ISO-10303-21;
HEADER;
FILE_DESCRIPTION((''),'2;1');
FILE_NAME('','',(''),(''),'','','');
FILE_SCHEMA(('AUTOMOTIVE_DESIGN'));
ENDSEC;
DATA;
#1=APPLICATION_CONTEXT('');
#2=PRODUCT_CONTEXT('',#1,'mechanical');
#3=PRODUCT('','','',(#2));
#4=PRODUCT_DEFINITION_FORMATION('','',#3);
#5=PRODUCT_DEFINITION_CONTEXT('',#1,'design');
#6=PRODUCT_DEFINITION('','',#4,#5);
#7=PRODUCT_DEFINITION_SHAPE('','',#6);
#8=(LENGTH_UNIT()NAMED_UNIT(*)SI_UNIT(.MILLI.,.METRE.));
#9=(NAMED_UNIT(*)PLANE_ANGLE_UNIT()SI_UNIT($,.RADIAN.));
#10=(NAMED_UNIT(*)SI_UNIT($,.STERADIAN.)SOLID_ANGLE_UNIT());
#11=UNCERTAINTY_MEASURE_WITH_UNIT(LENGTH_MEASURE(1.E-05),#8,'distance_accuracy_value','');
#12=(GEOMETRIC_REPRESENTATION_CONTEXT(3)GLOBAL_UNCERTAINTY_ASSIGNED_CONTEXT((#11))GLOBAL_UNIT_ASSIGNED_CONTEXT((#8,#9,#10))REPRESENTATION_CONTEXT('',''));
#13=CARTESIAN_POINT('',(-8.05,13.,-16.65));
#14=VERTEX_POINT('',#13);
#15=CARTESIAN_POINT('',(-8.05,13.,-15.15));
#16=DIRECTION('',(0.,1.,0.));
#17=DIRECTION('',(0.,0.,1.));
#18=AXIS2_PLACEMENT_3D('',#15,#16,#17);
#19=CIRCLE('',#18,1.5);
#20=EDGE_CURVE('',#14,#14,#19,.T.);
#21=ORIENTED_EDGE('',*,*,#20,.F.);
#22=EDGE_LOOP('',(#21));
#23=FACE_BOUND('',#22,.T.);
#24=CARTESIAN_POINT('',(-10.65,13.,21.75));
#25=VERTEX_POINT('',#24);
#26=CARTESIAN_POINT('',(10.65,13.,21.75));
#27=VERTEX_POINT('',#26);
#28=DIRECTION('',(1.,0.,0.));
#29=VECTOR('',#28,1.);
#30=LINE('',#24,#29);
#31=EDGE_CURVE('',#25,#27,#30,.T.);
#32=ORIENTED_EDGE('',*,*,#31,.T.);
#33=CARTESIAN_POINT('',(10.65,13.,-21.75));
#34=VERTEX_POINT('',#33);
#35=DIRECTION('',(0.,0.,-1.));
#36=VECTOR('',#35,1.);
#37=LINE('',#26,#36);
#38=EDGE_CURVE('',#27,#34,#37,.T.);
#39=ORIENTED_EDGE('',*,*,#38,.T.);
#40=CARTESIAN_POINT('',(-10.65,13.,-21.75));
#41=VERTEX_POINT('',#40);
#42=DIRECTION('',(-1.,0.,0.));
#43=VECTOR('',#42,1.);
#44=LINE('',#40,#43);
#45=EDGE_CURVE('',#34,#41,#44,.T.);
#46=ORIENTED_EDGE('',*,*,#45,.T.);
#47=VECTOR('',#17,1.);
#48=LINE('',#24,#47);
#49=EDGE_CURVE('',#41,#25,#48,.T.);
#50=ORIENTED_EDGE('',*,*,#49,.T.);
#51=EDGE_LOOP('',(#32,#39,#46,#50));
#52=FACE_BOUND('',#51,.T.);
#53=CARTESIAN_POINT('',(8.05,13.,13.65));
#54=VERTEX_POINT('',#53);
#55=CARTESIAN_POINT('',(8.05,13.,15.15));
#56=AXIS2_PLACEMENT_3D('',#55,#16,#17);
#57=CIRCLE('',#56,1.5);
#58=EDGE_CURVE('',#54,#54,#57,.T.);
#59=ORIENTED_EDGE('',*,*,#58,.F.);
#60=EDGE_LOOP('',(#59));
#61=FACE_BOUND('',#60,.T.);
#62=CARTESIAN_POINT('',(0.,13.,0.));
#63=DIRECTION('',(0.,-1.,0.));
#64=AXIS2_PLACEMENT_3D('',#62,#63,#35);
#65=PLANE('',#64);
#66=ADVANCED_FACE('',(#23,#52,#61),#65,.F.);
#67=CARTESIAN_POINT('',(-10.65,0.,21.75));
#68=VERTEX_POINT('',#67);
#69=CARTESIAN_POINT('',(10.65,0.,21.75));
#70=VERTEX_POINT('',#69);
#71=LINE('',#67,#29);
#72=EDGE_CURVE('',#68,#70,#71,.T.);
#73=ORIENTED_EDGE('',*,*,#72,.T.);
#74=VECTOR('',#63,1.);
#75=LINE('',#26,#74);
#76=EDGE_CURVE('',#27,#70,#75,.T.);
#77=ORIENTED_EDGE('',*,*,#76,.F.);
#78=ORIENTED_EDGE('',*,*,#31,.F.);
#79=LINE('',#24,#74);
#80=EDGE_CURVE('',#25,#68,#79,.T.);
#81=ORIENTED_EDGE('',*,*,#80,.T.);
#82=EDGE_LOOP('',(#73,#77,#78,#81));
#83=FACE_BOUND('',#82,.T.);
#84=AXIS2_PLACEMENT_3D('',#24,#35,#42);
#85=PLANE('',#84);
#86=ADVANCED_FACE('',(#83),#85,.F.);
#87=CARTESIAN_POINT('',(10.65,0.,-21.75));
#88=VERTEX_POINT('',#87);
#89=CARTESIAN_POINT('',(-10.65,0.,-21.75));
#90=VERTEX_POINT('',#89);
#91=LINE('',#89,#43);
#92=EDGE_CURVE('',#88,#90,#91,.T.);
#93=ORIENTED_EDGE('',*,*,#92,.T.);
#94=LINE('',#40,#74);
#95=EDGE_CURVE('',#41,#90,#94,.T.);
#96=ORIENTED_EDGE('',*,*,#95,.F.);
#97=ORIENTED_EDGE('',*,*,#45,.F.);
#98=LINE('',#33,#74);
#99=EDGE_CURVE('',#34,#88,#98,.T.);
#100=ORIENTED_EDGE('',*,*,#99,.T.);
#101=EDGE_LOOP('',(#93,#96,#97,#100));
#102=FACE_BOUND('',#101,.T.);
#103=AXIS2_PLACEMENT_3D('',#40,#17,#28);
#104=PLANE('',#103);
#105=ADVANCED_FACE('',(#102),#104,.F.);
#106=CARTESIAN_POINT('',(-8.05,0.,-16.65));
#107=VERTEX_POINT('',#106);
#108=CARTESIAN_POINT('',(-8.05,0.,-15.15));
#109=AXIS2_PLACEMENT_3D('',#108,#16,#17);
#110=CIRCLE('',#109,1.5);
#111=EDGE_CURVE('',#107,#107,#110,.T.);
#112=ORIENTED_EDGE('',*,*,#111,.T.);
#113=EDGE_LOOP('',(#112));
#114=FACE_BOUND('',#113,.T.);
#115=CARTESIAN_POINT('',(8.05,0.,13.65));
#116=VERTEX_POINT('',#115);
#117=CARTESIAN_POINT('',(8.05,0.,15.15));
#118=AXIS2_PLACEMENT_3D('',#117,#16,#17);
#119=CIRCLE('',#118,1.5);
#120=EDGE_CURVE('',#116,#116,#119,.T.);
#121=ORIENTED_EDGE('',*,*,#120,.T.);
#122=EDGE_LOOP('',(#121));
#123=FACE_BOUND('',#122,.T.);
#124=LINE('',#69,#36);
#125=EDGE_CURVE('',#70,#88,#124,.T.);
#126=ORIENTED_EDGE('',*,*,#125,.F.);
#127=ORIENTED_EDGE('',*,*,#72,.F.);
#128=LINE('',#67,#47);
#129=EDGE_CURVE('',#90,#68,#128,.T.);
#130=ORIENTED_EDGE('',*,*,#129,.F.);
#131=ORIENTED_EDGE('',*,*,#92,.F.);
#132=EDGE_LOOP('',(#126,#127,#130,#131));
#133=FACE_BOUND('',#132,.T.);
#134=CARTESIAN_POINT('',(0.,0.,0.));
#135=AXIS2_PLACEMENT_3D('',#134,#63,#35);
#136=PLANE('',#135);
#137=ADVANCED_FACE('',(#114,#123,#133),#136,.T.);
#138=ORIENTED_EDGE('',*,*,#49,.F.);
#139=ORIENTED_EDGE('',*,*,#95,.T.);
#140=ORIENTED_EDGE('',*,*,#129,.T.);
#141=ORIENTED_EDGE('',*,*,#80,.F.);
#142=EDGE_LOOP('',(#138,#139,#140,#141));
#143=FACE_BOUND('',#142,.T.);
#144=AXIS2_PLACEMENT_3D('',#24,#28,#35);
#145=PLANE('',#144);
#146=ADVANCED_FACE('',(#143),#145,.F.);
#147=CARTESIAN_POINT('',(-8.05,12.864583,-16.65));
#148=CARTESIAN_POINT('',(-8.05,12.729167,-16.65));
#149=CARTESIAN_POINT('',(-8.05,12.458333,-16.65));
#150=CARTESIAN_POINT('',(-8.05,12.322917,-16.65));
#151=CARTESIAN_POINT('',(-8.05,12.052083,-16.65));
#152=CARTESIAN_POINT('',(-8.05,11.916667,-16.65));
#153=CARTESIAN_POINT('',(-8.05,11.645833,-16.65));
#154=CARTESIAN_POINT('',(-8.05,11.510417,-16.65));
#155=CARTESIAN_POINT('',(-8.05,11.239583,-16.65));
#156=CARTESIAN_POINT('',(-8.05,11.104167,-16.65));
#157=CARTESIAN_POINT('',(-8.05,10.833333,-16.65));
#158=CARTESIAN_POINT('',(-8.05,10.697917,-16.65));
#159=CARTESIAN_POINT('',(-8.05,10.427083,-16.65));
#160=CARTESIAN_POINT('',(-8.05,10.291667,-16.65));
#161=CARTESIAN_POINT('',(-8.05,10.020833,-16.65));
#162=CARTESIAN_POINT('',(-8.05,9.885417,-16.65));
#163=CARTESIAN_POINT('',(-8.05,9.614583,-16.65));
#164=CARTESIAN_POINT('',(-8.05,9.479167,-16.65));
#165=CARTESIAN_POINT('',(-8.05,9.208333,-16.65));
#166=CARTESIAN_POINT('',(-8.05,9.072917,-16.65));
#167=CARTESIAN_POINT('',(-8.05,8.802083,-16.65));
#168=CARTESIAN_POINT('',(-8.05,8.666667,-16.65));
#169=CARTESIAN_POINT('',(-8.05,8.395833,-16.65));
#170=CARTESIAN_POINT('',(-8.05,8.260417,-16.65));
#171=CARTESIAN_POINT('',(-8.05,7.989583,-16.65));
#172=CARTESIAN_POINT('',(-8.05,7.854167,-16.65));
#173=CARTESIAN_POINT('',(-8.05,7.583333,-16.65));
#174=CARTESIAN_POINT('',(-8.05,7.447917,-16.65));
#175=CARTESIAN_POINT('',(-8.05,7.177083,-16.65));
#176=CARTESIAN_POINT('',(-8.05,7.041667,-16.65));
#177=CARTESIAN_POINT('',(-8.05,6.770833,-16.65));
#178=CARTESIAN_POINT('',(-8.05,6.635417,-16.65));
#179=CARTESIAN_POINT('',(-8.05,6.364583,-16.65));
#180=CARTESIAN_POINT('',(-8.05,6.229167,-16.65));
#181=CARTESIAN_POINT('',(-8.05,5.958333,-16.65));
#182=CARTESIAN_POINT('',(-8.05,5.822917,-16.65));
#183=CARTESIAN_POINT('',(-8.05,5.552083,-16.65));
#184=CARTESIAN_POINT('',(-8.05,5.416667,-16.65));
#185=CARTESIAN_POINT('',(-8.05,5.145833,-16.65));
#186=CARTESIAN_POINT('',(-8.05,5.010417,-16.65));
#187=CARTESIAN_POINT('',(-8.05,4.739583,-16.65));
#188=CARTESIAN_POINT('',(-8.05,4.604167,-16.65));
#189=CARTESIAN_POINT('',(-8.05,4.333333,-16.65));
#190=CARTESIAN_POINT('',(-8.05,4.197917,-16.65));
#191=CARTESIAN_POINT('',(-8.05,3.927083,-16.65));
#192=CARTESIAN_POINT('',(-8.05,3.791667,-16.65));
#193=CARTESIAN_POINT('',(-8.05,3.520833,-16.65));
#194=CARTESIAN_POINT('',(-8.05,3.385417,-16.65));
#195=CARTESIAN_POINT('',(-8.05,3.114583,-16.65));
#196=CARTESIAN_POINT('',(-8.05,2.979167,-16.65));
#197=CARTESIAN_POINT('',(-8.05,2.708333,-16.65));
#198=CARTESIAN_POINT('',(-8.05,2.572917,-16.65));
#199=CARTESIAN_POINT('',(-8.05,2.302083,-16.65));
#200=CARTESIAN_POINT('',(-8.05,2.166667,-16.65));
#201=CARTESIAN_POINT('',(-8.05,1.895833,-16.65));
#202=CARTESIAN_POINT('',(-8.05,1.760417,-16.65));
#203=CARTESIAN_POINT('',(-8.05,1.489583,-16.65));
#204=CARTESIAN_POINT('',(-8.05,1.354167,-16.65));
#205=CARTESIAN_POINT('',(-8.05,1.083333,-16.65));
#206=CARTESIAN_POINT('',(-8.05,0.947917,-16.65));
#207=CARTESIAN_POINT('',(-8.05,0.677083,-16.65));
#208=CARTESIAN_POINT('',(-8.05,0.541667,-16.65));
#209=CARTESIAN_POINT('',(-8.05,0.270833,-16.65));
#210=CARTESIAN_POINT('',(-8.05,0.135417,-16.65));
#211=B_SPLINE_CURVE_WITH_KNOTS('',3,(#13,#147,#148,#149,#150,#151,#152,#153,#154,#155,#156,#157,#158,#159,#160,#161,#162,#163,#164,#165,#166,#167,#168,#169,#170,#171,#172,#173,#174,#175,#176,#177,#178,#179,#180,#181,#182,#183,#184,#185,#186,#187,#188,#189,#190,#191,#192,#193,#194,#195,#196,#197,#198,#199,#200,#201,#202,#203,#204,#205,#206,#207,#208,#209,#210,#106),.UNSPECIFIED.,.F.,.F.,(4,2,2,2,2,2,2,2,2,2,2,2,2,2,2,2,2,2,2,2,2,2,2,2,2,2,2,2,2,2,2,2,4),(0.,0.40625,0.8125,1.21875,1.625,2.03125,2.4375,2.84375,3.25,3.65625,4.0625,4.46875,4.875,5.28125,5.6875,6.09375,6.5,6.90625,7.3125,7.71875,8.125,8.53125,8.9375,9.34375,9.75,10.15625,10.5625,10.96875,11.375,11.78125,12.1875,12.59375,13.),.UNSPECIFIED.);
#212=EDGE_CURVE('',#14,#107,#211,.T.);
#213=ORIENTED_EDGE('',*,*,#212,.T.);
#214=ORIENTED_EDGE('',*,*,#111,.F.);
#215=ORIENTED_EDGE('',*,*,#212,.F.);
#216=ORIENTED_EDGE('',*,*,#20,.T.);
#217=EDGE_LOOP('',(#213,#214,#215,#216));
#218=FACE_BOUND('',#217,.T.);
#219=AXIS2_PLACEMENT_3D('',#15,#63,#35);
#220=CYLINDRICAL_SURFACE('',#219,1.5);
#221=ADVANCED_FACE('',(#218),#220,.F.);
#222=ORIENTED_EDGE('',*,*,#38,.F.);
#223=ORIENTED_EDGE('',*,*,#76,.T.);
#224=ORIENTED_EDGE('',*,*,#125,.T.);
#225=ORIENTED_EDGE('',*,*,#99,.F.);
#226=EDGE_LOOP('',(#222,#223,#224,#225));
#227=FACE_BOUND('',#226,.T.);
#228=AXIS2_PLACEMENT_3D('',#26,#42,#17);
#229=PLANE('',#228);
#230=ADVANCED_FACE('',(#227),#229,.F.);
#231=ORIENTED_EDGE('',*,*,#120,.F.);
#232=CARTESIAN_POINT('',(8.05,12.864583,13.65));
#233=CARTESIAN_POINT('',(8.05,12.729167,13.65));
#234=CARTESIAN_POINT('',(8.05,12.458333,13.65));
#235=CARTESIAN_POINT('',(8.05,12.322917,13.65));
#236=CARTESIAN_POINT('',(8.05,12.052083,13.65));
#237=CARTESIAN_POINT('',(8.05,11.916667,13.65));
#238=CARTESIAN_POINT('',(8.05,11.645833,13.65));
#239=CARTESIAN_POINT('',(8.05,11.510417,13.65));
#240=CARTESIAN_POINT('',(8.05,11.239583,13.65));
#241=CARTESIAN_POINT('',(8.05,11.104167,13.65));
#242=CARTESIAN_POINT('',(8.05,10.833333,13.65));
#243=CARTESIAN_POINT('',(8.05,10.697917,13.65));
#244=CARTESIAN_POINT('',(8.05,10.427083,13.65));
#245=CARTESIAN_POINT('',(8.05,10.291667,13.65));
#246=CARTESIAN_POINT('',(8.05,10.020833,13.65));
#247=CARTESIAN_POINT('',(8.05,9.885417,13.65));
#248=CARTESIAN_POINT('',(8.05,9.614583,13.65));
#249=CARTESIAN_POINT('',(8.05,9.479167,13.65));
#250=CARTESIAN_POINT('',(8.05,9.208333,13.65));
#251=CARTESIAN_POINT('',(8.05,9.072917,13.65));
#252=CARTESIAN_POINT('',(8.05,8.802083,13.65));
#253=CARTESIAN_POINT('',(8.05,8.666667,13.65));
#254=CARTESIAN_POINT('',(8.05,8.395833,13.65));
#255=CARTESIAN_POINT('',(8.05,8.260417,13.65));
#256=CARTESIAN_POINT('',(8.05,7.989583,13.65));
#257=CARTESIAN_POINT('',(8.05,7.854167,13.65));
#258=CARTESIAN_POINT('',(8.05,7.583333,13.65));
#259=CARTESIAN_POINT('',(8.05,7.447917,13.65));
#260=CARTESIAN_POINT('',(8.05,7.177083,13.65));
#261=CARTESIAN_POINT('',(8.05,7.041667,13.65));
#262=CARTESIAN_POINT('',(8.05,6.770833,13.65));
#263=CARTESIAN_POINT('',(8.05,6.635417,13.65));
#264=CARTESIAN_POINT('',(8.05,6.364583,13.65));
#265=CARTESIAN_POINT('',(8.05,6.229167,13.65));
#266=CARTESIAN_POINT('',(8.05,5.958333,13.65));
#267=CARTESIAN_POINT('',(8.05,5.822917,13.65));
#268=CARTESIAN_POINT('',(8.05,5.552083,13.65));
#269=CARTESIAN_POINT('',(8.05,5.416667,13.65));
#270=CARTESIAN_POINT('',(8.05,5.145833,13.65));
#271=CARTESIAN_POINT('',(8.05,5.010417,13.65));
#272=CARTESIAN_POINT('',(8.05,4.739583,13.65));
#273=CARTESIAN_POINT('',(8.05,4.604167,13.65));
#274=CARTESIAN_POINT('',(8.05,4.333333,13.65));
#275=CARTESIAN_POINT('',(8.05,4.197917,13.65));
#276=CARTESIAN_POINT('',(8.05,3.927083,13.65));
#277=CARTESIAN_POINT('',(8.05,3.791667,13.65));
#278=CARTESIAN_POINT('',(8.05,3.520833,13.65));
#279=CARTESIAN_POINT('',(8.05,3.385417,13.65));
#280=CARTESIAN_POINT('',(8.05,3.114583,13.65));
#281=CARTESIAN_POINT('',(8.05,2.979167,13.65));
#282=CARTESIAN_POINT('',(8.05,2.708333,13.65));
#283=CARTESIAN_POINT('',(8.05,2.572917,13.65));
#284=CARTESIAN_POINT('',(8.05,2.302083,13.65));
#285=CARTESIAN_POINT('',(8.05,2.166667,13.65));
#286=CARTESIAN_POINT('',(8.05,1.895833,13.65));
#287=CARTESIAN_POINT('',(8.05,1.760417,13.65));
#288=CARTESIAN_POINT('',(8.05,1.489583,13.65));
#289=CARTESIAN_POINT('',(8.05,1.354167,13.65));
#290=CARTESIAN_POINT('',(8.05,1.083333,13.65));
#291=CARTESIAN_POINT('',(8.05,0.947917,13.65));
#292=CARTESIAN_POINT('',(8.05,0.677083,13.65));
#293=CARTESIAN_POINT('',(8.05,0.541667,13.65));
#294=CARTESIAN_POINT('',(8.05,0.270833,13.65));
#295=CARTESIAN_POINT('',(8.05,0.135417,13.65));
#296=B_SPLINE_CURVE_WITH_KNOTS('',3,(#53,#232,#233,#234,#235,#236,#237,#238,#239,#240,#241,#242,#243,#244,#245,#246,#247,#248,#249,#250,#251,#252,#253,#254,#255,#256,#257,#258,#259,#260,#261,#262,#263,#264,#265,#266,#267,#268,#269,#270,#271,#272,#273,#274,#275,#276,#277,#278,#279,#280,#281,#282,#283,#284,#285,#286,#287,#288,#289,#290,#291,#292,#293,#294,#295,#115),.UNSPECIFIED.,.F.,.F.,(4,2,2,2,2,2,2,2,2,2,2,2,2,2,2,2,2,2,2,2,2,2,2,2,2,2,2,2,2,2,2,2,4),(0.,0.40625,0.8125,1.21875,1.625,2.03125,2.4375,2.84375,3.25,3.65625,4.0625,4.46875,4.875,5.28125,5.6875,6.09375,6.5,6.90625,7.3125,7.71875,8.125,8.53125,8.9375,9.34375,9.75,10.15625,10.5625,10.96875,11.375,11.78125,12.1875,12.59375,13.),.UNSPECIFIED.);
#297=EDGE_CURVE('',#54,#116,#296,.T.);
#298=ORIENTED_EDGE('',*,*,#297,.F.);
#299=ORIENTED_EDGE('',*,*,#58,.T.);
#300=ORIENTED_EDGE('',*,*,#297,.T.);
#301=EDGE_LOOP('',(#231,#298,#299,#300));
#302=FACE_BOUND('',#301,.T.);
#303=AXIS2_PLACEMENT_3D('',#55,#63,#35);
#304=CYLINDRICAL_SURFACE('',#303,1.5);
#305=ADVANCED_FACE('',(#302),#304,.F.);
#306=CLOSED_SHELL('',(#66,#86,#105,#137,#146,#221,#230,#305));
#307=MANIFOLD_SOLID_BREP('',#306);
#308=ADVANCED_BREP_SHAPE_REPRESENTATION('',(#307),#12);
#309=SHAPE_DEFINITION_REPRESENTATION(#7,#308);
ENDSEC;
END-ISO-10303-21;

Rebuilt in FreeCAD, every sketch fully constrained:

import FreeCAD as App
import Part
import Sketcher
from FreeCAD import Vector
Q = App.Units.Quantity


def add_polygon(sketch, points):
    """Adds a closed chain of lines whose ends are joined by coincident constraints."""
    first, n = sketch.GeometryCount, len(points)
    for a, b in zip(points, points[1:] + points[:1]):
        sketch.addGeometry(Part.LineSegment(App.Vector(*a, 0), App.Vector(*b, 0)), False)
    for i in range(n):
        sketch.addConstraint(Sketcher.Constraint("Coincident", first + i, 2, first + (i + 1) % n, 1))

doc = App.newDocument("Part")
body = doc.addObject("PartDesign::Body", "Body")

sketch1 = body.newObject("Sketcher::SketchObject", "Sketch")
sketch1.AttachmentSupport = (doc.getObject("XZ_Plane"), [""])
sketch1.MapMode = "FlatFace"
add_polygon(sketch1, [(-10.7, -21.8), (-10.7, 21.8), (10.7, 21.8), (10.7, -21.8)])
sketch1.addGeometry(Part.Circle(Vector(8.1, 15.2, 0), Vector(0, 0, 1), 1.5), False)
sketch1.addGeometry(Part.Circle(Vector(-8.1, -15.2, 0), Vector(0, 0, 1), 1.5), False)
sketch1.addConstraint([
    Sketcher.Constraint("Vertical", 0),
    Sketcher.Constraint("Horizontal", 1),
    Sketcher.Constraint("Vertical", 2),
    Sketcher.Constraint("Horizontal", 3),
    Sketcher.Constraint("Equal", 4, 5),
    Sketcher.Constraint("Symmetric", 4, 3, 5, 3, -1, 1),
    Sketcher.Constraint("Symmetric", 0, 2, 2, 2, -1, 1),
    Sketcher.Constraint("Diameter", 4, Q("3 mm")),
    Sketcher.Constraint("DistanceX", 1, 1, 1, 2, Q("21.3 mm")),
    Sketcher.Constraint("DistanceY", 0, 1, 0, 2, Q("43.5 mm")),
    Sketcher.Constraint("DistanceX", 5, 3, 4, 3, Q("16.1 mm")),
    Sketcher.Constraint("DistanceY", 5, 3, 4, 3, Q("30.3 mm")),
])
pad1 = body.newObject("PartDesign::Pad", "Pad")
pad1.Profile = sketch1
pad1.Length = 13
pad1.Reversed = True

doc.recompute()
